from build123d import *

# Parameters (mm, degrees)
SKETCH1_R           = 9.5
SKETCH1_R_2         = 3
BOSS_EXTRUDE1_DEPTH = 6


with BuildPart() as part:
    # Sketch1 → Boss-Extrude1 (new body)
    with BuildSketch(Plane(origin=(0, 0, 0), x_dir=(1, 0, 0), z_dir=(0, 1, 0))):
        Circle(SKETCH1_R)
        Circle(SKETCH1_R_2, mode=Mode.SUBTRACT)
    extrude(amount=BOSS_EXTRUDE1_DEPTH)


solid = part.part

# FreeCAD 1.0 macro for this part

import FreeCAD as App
import Part
import Sketcher
Q = App.Units.Quantity

doc = App.newDocument("Part")
params = doc.addObject("Spreadsheet::Sheet", "Params")
for row, (alias, value) in enumerate([
    ("sketch1_diameter", "19 mm"),
    ("sketch1_diameter2", "6 mm"),
    ("pad1_length", "6 mm"),
], start=1):
    params.set(f"A{row}", alias)
    params.set(f"B{row}", "=" + value)
    params.setAlias(f"B{row}", alias)

body = doc.addObject("PartDesign::Body", "Body")

# Sketch on XZ plane
sketch1 = body.newObject("Sketcher::SketchObject", "Sketch")
sketch1.AttachmentSupport = (doc.getObject("XZ_Plane"), [""])
sketch1.MapMode = "FlatFace"
sketch1.addGeometry([
    Part.Circle(App.Vector(0, 0, 0), App.Vector(0, 0, 1), 9.5),
    Part.Circle(App.Vector(0, 0, 0), App.Vector(0, 0, 1), 3),
], False)
sketch1.addConstraint([
    Sketcher.Constraint("Coincident", 0, 3, -1, 1),
    Sketcher.Constraint("Coincident", 1, 3, -1, 1),
    Sketcher.Constraint("Diameter", 0, Q("19 mm")),
    Sketcher.Constraint("Diameter", 1, Q("6 mm")),
])
sketch1.setExpression("Constraints[2]", "Params.sketch1_diameter")
sketch1.setExpression("Constraints[3]", "Params.sketch1_diameter2")
pad1 = body.newObject("PartDesign::Pad", "Pad")
pad1.Profile = sketch1
pad1.setExpression("Length", "Params.pad1_length")
pad1.Reversed = True

doc.recompute()
